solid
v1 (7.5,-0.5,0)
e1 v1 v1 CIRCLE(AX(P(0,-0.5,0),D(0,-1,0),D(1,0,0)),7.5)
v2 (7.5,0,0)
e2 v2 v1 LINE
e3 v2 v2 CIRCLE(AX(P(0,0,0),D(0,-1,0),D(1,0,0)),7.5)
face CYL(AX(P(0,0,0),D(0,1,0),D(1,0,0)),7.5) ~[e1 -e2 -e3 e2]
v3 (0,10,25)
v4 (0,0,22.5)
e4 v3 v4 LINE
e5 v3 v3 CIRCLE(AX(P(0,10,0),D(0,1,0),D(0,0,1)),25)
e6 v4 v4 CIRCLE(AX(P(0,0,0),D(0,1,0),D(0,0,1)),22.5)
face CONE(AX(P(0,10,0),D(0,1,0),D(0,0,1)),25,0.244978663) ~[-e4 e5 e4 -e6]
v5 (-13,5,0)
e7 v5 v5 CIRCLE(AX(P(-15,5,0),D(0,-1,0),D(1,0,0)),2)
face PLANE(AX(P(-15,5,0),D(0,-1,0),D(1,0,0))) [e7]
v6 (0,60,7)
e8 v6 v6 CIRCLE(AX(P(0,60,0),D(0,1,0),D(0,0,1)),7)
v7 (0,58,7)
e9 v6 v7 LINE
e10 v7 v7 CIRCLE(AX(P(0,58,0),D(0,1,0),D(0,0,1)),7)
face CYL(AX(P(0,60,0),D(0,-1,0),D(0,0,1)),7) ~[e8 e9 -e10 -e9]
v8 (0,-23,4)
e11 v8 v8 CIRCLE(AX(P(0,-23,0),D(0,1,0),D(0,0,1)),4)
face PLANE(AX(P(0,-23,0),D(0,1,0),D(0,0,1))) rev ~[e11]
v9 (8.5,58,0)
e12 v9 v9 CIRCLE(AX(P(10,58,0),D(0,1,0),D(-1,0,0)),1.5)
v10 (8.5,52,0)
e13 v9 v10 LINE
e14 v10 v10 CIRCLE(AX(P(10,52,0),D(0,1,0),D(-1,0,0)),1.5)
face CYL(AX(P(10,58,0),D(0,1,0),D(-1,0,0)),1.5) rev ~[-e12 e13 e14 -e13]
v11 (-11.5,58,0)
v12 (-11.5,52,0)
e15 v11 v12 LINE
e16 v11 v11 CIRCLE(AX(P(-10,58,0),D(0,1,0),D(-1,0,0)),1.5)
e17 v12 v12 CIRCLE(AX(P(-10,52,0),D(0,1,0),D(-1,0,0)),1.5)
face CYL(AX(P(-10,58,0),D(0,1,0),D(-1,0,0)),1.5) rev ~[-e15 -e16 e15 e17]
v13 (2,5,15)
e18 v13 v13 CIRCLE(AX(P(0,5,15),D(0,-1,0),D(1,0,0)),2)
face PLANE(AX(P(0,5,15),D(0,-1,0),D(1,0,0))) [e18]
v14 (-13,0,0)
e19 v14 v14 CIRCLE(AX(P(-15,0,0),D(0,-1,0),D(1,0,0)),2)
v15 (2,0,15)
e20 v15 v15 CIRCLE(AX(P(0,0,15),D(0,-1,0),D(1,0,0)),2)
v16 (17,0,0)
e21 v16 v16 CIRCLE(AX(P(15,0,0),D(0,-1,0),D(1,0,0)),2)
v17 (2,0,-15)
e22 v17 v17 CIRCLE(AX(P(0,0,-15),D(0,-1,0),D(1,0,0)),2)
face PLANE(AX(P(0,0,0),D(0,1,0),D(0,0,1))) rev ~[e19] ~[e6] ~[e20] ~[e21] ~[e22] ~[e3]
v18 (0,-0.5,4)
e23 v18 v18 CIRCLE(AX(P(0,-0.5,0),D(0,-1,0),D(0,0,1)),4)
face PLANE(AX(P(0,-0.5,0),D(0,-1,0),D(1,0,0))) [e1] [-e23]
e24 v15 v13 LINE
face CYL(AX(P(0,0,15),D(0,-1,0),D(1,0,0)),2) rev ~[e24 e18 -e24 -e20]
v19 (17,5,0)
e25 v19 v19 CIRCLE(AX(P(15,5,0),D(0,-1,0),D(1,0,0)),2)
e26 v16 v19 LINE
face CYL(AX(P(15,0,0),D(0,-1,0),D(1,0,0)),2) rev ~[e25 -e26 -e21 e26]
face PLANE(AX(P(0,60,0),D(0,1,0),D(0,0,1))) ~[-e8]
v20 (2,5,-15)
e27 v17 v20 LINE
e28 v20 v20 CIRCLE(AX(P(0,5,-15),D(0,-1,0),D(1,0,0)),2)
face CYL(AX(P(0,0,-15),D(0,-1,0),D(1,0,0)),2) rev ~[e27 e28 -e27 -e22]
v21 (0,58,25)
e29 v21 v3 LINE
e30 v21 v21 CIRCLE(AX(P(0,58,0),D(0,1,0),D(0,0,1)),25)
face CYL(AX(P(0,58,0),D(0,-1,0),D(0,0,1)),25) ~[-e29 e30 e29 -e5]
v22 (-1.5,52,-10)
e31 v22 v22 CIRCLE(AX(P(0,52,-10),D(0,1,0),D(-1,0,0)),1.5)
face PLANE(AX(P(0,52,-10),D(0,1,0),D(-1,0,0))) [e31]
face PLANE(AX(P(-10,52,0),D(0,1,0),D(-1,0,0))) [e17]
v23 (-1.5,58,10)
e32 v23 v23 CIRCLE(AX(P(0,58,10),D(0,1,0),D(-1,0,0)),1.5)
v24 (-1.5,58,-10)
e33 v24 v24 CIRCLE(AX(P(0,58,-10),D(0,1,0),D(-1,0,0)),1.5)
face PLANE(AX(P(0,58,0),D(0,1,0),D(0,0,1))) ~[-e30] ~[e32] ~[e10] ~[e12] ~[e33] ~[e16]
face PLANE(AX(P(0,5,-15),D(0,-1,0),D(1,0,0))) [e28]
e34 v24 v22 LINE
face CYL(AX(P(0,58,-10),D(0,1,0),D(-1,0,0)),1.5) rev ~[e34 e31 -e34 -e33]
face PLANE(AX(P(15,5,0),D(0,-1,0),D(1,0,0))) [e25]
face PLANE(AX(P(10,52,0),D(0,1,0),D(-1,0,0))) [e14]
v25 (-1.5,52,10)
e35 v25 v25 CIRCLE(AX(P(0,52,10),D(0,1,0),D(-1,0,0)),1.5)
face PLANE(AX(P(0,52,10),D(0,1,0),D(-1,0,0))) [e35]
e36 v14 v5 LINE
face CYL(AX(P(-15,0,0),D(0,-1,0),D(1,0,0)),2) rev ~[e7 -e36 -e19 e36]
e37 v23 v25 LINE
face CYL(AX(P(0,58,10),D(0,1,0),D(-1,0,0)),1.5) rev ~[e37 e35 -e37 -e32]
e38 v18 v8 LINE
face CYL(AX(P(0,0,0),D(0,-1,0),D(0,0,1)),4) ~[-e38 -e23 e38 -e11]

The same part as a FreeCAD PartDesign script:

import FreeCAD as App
import Part
import Sketcher


def add_polygon(sketch, points):
    """Adds a closed chain of lines whose ends are joined by coincident constraints."""
    first, n = sketch.GeometryCount, len(points)
    for a, b in zip(points, points[1:] + points[:1]):
        sketch.addGeometry(Part.LineSegment(App.Vector(*a, 0), App.Vector(*b, 0)), False)
    for i in range(n):
        sketch.addConstraint(Sketcher.Constraint("Coincident", first + i, 2, first + (i + 1) % n, 1))

doc = App.newDocument("Part")
body = doc.addObject("PartDesign::Body", "Body")

# Sketch on YZ plane
sketch1 = body.newObject("Sketcher::SketchObject", "Sketch")
sketch1.AttachmentSupport = (doc.getObject("YZ_Plane"), [""])
sketch1.MapMode = "FlatFace"
add_polygon(sketch1, [(10, 25), (0, 22.5), (0, 4), (-23, 4), (-23, 0), (60, 0), (60, 7), (58, 7), (58, 25)])  # lines 0-8
sketch1.addConstraint([
    Sketcher.Constraint("Vertical", 1),
    Sketcher.Constraint("Horizontal", 2),
    Sketcher.Constraint("Vertical", 3),
    Sketcher.Constraint("Horizontal", 4),
    Sketcher.Constraint("Vertical", 5),
    Sketcher.Constraint("Horizontal", 6),
    Sketcher.Constraint("Vertical", 7),
    Sketcher.Constraint("Horizontal", 8),
    Sketcher.Constraint("PointOnObject", 0, 2, -2),
    Sketcher.Constraint("PointOnObject", 3, 2, -1),
    Sketcher.Constraint("DistanceX", 2, 2, 2, 1, 23.0),
    Sketcher.Constraint("DistanceX", 4, 1, 4, 2, 83.0),
    Sketcher.Constraint("DistanceX", 6, 2, 6, 1, 2.0),
    Sketcher.Constraint("DistanceX", 8, 2, 8, 1, 48.0),
    Sketcher.Constraint("DistanceY", 3, 2, 3, 1, 4.0),
    Sketcher.Constraint("DistanceY", 5, 1, 5, 2, 7.0),
    Sketcher.Constraint("DistanceY", 7, 1, 7, 2, 18.0),
    Sketcher.Constraint("DistanceY", 1, 2, 1, 1, 18.5),
])
revolution = body.newObject("PartDesign::Revolution", "Revolution")
revolution.Profile = sketch1
revolution.ReferenceAxis = (sketch1, ["H_Axis"])
revolution.Angle = 360

# Sketch on XZ plane
sketch2 = body.newObject("Sketcher::SketchObject", "Sketch001")
sketch2.AttachmentSupport = (doc.getObject("XZ_Plane"), [""])
sketch2.MapMode = "FlatFace"
sketch2.addGeometry([
    Part.Circle(App.Vector(15, 0, 0), App.Vector(0, 0, 1), 2),
    Part.Circle(App.Vector(0, 15, 0), App.Vector(0, 0, 1), 2),
    Part.Circle(App.Vector(-15, 0, 0), App.Vector(0, 0, 1), 2),
    Part.Circle(App.Vector(0, -15, 0), App.Vector(0, 0, 1), 2),
], False)
sketch2.addConstraint([
    Sketcher.Constraint("Equal", 0, 1),
    Sketcher.Constraint("Equal", 1, 2),
    Sketcher.Constraint("Equal", 2, 3),
    Sketcher.Constraint("Symmetric", 0, 3, 2, 3, -1, 1),
    Sketcher.Constraint("Symmetric", 1, 3, 3, 3, -1, 1),
    Sketcher.Constraint("PointOnObject", 0, 3, -1),
    Sketcher.Constraint("PointOnObject", 1, 3, -2),
    Sketcher.Constraint("Diameter", 0, 4.0),
    Sketcher.Constraint("DistanceX", -1, 1, 0, 3, 15.0),
    Sketcher.Constraint("DistanceY", -1, 1, 1, 3, 15.0),
])
pocket1 = body.newObject("PartDesign::Pocket", "Pocket")
pocket1.Profile = sketch2
pocket1.Length = 5

# Sketch on XZ plane
sketch3 = body.newObject("Sketcher::SketchObject", "Sketch002")
sketch3.AttachmentSupport = (doc.getObject("XZ_Plane"), [""])
sketch3.MapMode = "FlatFace"
sketch3.addGeometry(Part.Circle(App.Vector(0, 0, 0), App.Vector(0, 0, 1), 8), False)
sketch3.addConstraint([
    Sketcher.Constraint("Coincident", 0, 3, -1, 1),
    Sketcher.Constraint("Diameter", 0, 15.0),
])
pad1 = body.newObject("PartDesign::Pad", "Pad")
pad1.Profile = sketch3
pad1.Length = 0.5

# Sketch on XZ plane
sketch4 = body.newObject("Sketcher::SketchObject", "Sketch003")
sketch4.AttachmentSupport = (doc.getObject("XZ_Plane"), [""])
sketch4.MapMode = "FlatFace"
sketch4.AttachmentOffset = App.Placement(App.Vector(0, 0, -58), App.Rotation())
sketch4.addGeometry([
    Part.Circle(App.Vector(-10, 0, 0), App.Vector(0, 0, 1), 1.5),
    Part.Circle(App.Vector(0, 10, 0), App.Vector(0, 0, 1), 1.5),
    Part.Circle(App.Vector(10, 0, 0), App.Vector(0, 0, 1), 1.5),
    Part.Circle(App.Vector(0, -10, 0), App.Vector(0, 0, 1), 1.5),
], False)
sketch4.addConstraint([
    Sketcher.Constraint("Equal", 0, 1),
    Sketcher.Constraint("Equal", 1, 2),
    Sketcher.Constraint("Equal", 2, 3),
    Sketcher.Constraint("Symmetric", 0, 3, 2, 3, -1, 1),
    Sketcher.Constraint("Symmetric", 1, 3, 3, 3, -1, 1),
    Sketcher.Constraint("PointOnObject", 0, 3, -1),
    Sketcher.Constraint("PointOnObject", 1, 3, -2),
    Sketcher.Constraint("Diameter", 0, 3.0),
    Sketcher.Constraint("DistanceX", 0, 3, -1, 1, 10.0),
    Sketcher.Constraint("DistanceY", -1, 1, 1, 3, 10.0),
])
pocket2 = body.newObject("PartDesign::Pocket", "Pocket001")
pocket2.Profile = sketch4
pocket2.Length = 6
pocket2.Reversed = True

doc.recompute()
